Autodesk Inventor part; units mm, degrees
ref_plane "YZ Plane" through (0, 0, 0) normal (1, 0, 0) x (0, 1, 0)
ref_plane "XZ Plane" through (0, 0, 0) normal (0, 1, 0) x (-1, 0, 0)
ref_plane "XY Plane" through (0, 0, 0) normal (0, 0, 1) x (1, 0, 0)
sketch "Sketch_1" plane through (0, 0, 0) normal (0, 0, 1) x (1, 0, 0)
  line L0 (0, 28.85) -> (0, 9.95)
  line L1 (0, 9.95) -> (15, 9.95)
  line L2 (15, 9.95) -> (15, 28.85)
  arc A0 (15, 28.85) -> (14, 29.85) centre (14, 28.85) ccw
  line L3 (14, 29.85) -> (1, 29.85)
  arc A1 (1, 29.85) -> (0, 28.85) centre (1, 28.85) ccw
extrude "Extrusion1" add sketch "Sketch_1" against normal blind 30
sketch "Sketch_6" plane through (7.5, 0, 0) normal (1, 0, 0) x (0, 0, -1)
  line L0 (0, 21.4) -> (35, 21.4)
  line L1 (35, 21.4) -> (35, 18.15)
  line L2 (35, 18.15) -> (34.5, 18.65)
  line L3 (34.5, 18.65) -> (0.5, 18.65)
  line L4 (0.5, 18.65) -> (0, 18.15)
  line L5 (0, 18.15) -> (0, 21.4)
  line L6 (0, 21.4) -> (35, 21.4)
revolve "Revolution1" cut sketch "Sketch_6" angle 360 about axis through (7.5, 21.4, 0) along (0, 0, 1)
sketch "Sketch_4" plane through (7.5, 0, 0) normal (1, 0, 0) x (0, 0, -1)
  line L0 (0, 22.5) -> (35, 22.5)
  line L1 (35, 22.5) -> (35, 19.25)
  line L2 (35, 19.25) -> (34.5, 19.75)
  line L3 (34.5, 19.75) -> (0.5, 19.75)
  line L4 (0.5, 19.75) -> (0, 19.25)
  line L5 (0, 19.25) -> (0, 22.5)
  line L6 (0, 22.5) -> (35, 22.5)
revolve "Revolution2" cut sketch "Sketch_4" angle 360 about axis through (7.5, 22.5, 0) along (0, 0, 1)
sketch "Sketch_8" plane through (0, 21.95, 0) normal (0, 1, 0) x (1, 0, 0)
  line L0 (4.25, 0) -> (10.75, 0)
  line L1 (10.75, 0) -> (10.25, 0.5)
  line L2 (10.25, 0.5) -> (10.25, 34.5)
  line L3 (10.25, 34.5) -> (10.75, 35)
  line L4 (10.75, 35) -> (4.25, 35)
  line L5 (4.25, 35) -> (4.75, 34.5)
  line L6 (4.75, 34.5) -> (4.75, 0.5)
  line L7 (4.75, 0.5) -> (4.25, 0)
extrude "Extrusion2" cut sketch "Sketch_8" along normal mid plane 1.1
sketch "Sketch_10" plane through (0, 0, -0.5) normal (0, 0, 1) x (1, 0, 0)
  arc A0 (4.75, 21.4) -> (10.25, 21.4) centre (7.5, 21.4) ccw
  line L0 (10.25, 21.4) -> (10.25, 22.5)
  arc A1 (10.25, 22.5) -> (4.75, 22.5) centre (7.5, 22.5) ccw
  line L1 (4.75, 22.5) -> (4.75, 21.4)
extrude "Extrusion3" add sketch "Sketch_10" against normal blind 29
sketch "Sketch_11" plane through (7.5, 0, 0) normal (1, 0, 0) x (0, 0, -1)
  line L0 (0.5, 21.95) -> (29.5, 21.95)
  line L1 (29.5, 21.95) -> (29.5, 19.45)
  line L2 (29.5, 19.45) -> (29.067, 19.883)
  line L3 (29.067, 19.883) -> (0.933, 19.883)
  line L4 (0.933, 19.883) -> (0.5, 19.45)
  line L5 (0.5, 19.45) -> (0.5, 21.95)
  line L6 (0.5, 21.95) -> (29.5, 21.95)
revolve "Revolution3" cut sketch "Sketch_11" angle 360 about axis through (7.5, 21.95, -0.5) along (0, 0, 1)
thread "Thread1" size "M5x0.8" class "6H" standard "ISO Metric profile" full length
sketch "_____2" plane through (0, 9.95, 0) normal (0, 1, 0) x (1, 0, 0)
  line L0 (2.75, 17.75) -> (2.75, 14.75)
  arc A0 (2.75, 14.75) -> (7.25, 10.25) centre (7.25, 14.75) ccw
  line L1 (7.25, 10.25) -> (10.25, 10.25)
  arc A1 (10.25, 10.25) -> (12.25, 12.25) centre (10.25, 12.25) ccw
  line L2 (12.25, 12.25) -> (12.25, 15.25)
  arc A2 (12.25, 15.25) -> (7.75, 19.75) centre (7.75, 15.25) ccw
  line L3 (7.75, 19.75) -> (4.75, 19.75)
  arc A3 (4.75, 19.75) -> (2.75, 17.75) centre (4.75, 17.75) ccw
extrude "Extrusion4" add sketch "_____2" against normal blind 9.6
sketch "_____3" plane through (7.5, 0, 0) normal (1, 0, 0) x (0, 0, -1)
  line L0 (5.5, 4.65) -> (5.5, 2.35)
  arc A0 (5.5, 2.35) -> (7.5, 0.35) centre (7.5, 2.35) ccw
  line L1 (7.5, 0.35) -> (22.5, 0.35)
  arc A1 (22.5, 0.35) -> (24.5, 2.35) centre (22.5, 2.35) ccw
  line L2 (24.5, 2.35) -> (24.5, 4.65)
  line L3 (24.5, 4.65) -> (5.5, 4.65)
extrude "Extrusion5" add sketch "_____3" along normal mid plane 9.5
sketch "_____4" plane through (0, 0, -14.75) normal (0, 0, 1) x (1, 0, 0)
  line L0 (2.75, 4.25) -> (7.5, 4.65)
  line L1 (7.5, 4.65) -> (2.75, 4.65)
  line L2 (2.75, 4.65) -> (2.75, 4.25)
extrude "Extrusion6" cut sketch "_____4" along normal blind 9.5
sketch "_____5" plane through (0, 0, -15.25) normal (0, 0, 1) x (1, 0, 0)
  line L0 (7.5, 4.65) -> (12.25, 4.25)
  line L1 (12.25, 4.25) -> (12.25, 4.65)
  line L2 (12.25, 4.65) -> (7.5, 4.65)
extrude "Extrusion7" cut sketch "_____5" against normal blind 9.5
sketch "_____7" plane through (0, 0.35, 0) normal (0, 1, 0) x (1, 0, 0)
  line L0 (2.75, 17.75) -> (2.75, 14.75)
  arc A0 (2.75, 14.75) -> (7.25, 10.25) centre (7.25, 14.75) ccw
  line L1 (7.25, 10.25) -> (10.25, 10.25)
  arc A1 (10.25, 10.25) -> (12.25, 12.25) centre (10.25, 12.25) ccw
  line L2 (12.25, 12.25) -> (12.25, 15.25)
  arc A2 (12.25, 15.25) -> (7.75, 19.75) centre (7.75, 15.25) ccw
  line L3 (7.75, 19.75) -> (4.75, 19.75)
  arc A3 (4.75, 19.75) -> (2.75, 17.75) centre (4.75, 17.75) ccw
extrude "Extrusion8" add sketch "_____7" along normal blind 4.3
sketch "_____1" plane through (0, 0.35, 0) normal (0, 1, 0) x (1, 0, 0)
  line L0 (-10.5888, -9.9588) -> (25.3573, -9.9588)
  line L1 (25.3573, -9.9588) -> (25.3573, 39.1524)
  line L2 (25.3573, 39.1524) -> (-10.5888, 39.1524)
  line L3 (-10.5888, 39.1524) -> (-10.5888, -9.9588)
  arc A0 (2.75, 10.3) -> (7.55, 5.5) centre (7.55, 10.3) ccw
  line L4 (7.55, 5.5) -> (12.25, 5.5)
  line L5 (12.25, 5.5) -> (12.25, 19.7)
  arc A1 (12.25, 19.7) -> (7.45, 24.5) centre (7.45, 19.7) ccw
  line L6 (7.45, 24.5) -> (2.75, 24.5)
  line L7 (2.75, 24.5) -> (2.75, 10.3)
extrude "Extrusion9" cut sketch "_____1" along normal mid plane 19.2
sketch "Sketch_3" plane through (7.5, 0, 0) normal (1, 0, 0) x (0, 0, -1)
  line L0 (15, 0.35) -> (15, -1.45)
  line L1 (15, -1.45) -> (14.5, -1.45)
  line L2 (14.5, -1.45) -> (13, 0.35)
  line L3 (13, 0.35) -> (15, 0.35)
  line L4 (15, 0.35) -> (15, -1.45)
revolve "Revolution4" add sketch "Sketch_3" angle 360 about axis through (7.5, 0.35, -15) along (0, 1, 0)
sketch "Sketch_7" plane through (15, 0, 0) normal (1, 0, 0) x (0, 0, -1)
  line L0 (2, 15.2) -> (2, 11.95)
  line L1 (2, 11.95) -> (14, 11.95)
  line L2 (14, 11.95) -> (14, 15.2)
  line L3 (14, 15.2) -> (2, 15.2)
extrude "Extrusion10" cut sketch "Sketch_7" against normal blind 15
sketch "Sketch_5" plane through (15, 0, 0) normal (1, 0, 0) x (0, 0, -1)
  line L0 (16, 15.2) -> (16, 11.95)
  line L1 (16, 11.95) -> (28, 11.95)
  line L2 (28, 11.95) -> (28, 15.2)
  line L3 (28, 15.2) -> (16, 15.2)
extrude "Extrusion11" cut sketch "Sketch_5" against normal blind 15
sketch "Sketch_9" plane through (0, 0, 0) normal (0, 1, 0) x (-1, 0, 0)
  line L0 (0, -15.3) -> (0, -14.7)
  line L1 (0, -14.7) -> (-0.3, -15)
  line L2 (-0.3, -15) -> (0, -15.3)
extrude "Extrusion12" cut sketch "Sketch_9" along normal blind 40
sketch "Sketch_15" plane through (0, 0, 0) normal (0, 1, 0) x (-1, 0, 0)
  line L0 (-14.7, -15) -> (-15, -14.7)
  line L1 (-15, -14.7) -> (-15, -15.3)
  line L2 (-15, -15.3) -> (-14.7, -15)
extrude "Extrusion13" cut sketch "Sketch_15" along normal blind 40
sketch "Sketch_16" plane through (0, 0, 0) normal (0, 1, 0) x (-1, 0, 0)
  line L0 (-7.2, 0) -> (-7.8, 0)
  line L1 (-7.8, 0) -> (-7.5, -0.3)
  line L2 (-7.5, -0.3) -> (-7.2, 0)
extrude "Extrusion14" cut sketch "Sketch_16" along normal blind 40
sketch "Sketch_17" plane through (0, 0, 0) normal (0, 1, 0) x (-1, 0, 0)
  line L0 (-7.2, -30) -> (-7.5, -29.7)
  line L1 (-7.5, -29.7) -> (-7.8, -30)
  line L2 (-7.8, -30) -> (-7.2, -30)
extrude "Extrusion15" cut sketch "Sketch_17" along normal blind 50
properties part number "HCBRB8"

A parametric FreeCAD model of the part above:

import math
import FreeCAD as App
import Part
import Sketcher

V = App.Vector
Q = App.Units.Quantity

doc = App.newDocument("Part")
body = doc.addObject("PartDesign::Body", "Body")

# Sketch on XY plane
sketch1 = body.newObject("Sketcher::SketchObject", "Sketch")
sketch1.AttachmentSupport = (doc.getObject("XY_Plane"), [""])
sketch1.MapMode = "FlatFace"
sketch1.addGeometry(Part.ArcOfCircle(Part.Circle(V(1, 28.9, 0), V(0, 0, 1), 1), math.radians(90), math.radians(180)), False)
sketch1.addGeometry(Part.LineSegment(V(0, 28.9, 0), V(0, 9.9, 0)), False)
sketch1.addGeometry(Part.LineSegment(V(0, 9.9, 0), V(15, 9.9, 0)), False)
sketch1.addGeometry(Part.LineSegment(V(15, 9.9, 0), V(15, 28.9, 0)), False)
sketch1.addGeometry(Part.ArcOfCircle(Part.Circle(V(14, 28.9, 0), V(0, 0, 1), 1), math.radians(0), math.radians(90)), False)
sketch1.addGeometry(Part.LineSegment(V(14, 29.9, 0), V(1, 29.9, 0)), False)
sketch1.addConstraint(Sketcher.Constraint("Tangent", 0, 2, 1, 1))
sketch1.addConstraint(Sketcher.Constraint("Coincident", 1, 2, 2, 1))
sketch1.addConstraint(Sketcher.Constraint("Coincident", 2, 2, 3, 1))
sketch1.addConstraint(Sketcher.Constraint("Tangent", 3, 2, 4, 1))
sketch1.addConstraint(Sketcher.Constraint("Tangent", 4, 2, 5, 1))
sketch1.addConstraint(Sketcher.Constraint("Tangent", 5, 2, 0, 1))
sketch1.addConstraint(Sketcher.Constraint("Vertical", 1))
sketch1.addConstraint(Sketcher.Constraint("Horizontal", 2))
sketch1.addConstraint(Sketcher.Constraint("Vertical", 3))
sketch1.addConstraint(Sketcher.Constraint("Horizontal", 5))
sketch1.addConstraint(Sketcher.Constraint("Equal", 0, 4))
sketch1.addConstraint(Sketcher.Constraint("PointOnObject", 0, 2, -2))
sketch1.addConstraint(Sketcher.Constraint("Radius", 0, Q("1 mm")))
sketch1.addConstraint(Sketcher.Constraint("DistanceX", 2, 1, 2, 2, Q("15 mm")))
sketch1.addConstraint(Sketcher.Constraint("DistanceY", 1, 2, 1, 1, Q("18.9 mm")))
sketch1.addConstraint(Sketcher.Constraint("DistanceY", -1, 1, 0, 3, Q("28.85 mm")))
pad1 = body.newObject("PartDesign::Pad", "Pad")
pad1.Profile = sketch1
pad1.Length = 30
pad1.Reversed = True

# Sketch on YZ plane
sketch2 = body.newObject("Sketcher::SketchObject", "Sketch001")
sketch2.AttachmentSupport = (doc.getObject("YZ_Plane"), [""])
sketch2.MapMode = "FlatFace"
sketch2.AttachmentOffset = App.Placement(V(0, 0, 7.5), App.Rotation())
sketch2.addGeometry(Part.LineSegment(V(21.4, -35, 0), V(21.4, 0, 0)), False)
sketch2.addGeometry(Part.LineSegment(V(21.4, 0, 0), V(18.1, 0, 0)), False)
sketch2.addGeometry(Part.LineSegment(V(18.1, 0, 0), V(18.6, -0.5, 0)), False)
sketch2.addGeometry(Part.LineSegment(V(18.6, -0.5, 0), V(18.6, -34.5, 0)), False)
sketch2.addGeometry(Part.LineSegment(V(18.6, -34.5, 0), V(18.1, -35, 0)), False)
sketch2.addGeometry(Part.LineSegment(V(18.1, -35, 0), V(21.4, -35, 0)), False)
sketch2.addGeometry(Part.LineSegment(V(21.4, -35, 0), V(21.4, 0, 0)), True)  # axis
sketch2.addConstraint(Sketcher.Constraint("Coincident", 0, 2, 1, 1))
sketch2.addConstraint(Sketcher.Constraint("Coincident", 1, 2, 2, 1))
sketch2.addConstraint(Sketcher.Constraint("Coincident", 2, 2, 3, 1))
sketch2.addConstraint(Sketcher.Constraint("Coincident", 3, 2, 4, 1))
sketch2.addConstraint(Sketcher.Constraint("Coincident", 4, 2, 5, 1))
sketch2.addConstraint(Sketcher.Constraint("Coincident", 5, 2, 0, 1))
sketch2.addConstraint(Sketcher.Constraint("Vertical", 0))
sketch2.addConstraint(Sketcher.Constraint("Horizontal", 1))
sketch2.addConstraint(Sketcher.Constraint("Vertical", 3))
sketch2.addConstraint(Sketcher.Constraint("Horizontal", 5))
sketch2.addConstraint(Sketcher.Constraint("Vertical", 6))
sketch2.addConstraint(Sketcher.Constraint("Coincident", 6, 1, 5, 2))
sketch2.addConstraint(Sketcher.Constraint("PointOnObject", 0, 2, -1))
sketch2.addConstraint(Sketcher.Constraint("PointOnObject", 6, 2, -1))
sketch2.addConstraint(Sketcher.Constraint("Perpendicular", 2, 4))
sketch2.addConstraint(Sketcher.Constraint("Vertical", 1, 2, 4, 2))
sketch2.addConstraint(Sketcher.Constraint("Equal", 2, 4))
sketch2.addConstraint(Sketcher.Constraint("DistanceY", 0, 1, 0, 2, Q("35 mm")))
sketch2.addConstraint(Sketcher.Constraint("DistanceY", 3, 2, 3, 1, Q("34 mm")))
sketch2.addConstraint(Sketcher.Constraint("DistanceX", 1, 2, 1, 1, Q("3.25 mm")))
sketch2.addConstraint(Sketcher.Constraint("DistanceX", -1, 1, 0, 2, Q("21.4 mm")))
groove = body.newObject("PartDesign::Groove", "Groove")
groove.Profile = sketch2
groove.ReferenceAxis = (sketch2, ["Axis0"])
groove.Angle = 360

# Sketch on YZ plane
sketch3 = body.newObject("Sketcher::SketchObject", "Sketch002")
sketch3.AttachmentSupport = (doc.getObject("YZ_Plane"), [""])
sketch3.MapMode = "FlatFace"
sketch3.AttachmentOffset = App.Placement(V(0, 0, 7.5), App.Rotation())
sketch3.addGeometry(Part.LineSegment(V(22.5, -35, 0), V(22.5, 0, 0)), False)
sketch3.addGeometry(Part.LineSegment(V(22.5, 0, 0), V(19.2, 0, 0)), False)
sketch3.addGeometry(Part.LineSegment(V(19.2, 0, 0), V(19.8, -0.5, 0)), False)
sketch3.addGeometry(Part.LineSegment(V(19.8, -0.5, 0), V(19.8, -34.5, 0)), False)
sketch3.addGeometry(Part.LineSegment(V(19.8, -34.5, 0), V(19.2, -35, 0)), False)
sketch3.addGeometry(Part.LineSegment(V(19.2, -35, 0), V(22.5, -35, 0)), False)
sketch3.addGeometry(Part.LineSegment(V(22.5, -35, 0), V(22.5, 0, 0)), True)  # axis
sketch3.addConstraint(Sketcher.Constraint("Coincident", 0, 2, 1, 1))
sketch3.addConstraint(Sketcher.Constraint("Coincident", 1, 2, 2, 1))
sketch3.addConstraint(Sketcher.Constraint("Coincident", 2, 2, 3, 1))
sketch3.addConstraint(Sketcher.Constraint("Coincident", 3, 2, 4, 1))
sketch3.addConstraint(Sketcher.Constraint("Coincident", 4, 2, 5, 1))
sketch3.addConstraint(Sketcher.Constraint("Coincident", 5, 2, 0, 1))
sketch3.addConstraint(Sketcher.Constraint("Vertical", 0))
sketch3.addConstraint(Sketcher.Constraint("Horizontal", 1))
sketch3.addConstraint(Sketcher.Constraint("Vertical", 3))
sketch3.addConstraint(Sketcher.Constraint("Horizontal", 5))
sketch3.addConstraint(Sketcher.Constraint("Vertical", 6))
sketch3.addConstraint(Sketcher.Constraint("Coincident", 6, 1, 5, 2))
sketch3.addConstraint(Sketcher.Constraint("PointOnObject", 0, 2, -1))
sketch3.addConstraint(Sketcher.Constraint("PointOnObject", 6, 2, -1))
sketch3.addConstraint(Sketcher.Constraint("Perpendicular", 2, 4))
sketch3.addConstraint(Sketcher.Constraint("Vertical", 1, 2, 4, 2))
sketch3.addConstraint(Sketcher.Constraint("Equal", 2, 4))
sketch3.addConstraint(Sketcher.Constraint("DistanceY", 0, 1, 0, 2, Q("35 mm")))
sketch3.addConstraint(Sketcher.Constraint("DistanceY", 3, 2, 3, 1, Q("34 mm")))
sketch3.addConstraint(Sketcher.Constraint("DistanceX", 1, 2, 1, 1, Q("3.25 mm")))
sketch3.addConstraint(Sketcher.Constraint("DistanceX", -1, 1, 0, 2, Q("22.5 mm")))
groove2 = body.newObject("PartDesign::Groove", "Groove001")
groove2.Profile = sketch3
groove2.ReferenceAxis = (sketch3, ["Axis0"])
groove2.Angle = 360

# Sketch on XZ plane
sketch4 = body.newObject("Sketcher::SketchObject", "Sketch003")
sketch4.AttachmentSupport = (doc.getObject("XZ_Plane"), [""])
sketch4.MapMode = "FlatFace"
sketch4.AttachmentOffset = App.Placement(V(0, 0, -21.95), App.Rotation())
sketch4.addGeometry(Part.LineSegment(V(4.8, -0.5, 0), V(4.2, 0, 0)), False)
sketch4.addGeometry(Part.LineSegment(V(4.2, 0, 0), V(10.8, 0, 0)), False)
sketch4.addGeometry(Part.LineSegment(V(10.8, 0, 0), V(10.2, -0.5, 0)), False)
sketch4.addGeometry(Part.LineSegment(V(10.2, -0.5, 0), V(10.2, -34.5, 0)), False)
sketch4.addGeometry(Part.LineSegment(V(10.2, -34.5, 0), V(10.8, -35, 0)), False)
sketch4.addGeometry(Part.LineSegment(V(10.8, -35, 0), V(4.2, -35, 0)), False)
sketch4.addGeometry(Part.LineSegment(V(4.2, -35, 0), V(4.8, -34.5, 0)), False)
sketch4.addGeometry(Part.LineSegment(V(4.8, -34.5, 0), V(4.8, -0.5, 0)), False)
sketch4.addConstraint(Sketcher.Constraint("Coincident", 0, 2, 1, 1))
sketch4.addConstraint(Sketcher.Constraint("Coincident", 1, 2, 2, 1))
sketch4.addConstraint(Sketcher.Constraint("Coincident", 2, 2, 3, 1))
sketch4.addConstraint(Sketcher.Constraint("Coincident", 3, 2, 4, 1))
sketch4.addConstraint(Sketcher.Constraint("Coincident", 4, 2, 5, 1))
sketch4.addConstraint(Sketcher.Constraint("Coincident", 5, 2, 6, 1))
sketch4.addConstraint(Sketcher.Constraint("Coincident", 6, 2, 7, 1))
sketch4.addConstraint(Sketcher.Constraint("Coincident", 7, 2, 0, 1))
sketch4.addConstraint(Sketcher.Constraint("Horizontal", 1))
sketch4.addConstraint(Sketcher.Constraint("Vertical", 3))
sketch4.addConstraint(Sketcher.Constraint("Horizontal", 5))
sketch4.addConstraint(Sketcher.Constraint("Vertical", 7))
sketch4.addConstraint(Sketcher.Constraint("PointOnObject", 0, 2, -1))
sketch4.addConstraint(Sketcher.Constraint("Perpendicular", 0, 2))
sketch4.addConstraint(Sketcher.Constraint("Perpendicular", 2, 4))
sketch4.addConstraint(Sketcher.Constraint("Perpendicular", 4, 6))
sketch4.addConstraint(Sketcher.Constraint("Horizontal", 3, 2, 6, 2))
sketch4.addConstraint(Sketcher.Constraint("Horizontal", 2, 2, 7, 2))
sketch4.addConstraint(Sketcher.Constraint("Vertical", 1, 2, 4, 2))
sketch4.addConstraint(Sketcher.Constraint("Vertical", 0, 2, 5, 2))
sketch4.addConstraint(Sketcher.Constraint("DistanceY", 3, 2, 3, 1, Q("34 mm")))
sketch4.addConstraint(Sketcher.Constraint("DistanceX", 1, 1, 1, 2, Q("6.5 mm")))
sketch4.addConstraint(Sketcher.Constraint("DistanceY", 4, 2, -1, 1, Q("35 mm")))
sketch4.addConstraint(Sketcher.Constraint("DistanceX", -1, 1, 0, 2, Q("4.25 mm")))
pocket1 = body.newObject("PartDesign::Pocket", "Pocket")
pocket1.Profile = sketch4
pocket1.Length = 1.1
pocket1.Midplane = True

# Sketch on XY plane
sketch5 = body.newObject("Sketcher::SketchObject", "Sketch004")
sketch5.AttachmentSupport = (doc.getObject("XY_Plane"), [""])
sketch5.MapMode = "FlatFace"
sketch5.AttachmentOffset = App.Placement(V(0, 0, -0.5), App.Rotation())
sketch5.addGeometry(Part.LineSegment(V(4.8, 22.5, 0), V(4.8, 21.4, 0)), False)
sketch5.addGeometry(Part.ArcOfCircle(Part.Circle(V(7.5, 21.4, 0), V(0, 0, 1), 2.8), math.radians(180), math.radians(360)), False)
sketch5.addGeometry(Part.LineSegment(V(10.2, 21.4, 0), V(10.2, 22.5, 0)), False)
sketch5.addGeometry(Part.ArcOfCircle(Part.Circle(V(7.5, 22.5, 0), V(0, 0, 1), 2.8), math.radians(0), math.radians(180)), False)
sketch5.addConstraint(Sketcher.Constraint("Tangent", 0, 2, 1, 1))
sketch5.addConstraint(Sketcher.Constraint("Tangent", 1, 2, 2, 1))
sketch5.addConstraint(Sketcher.Constraint("Tangent", 2, 2, 3, 1))
sketch5.addConstraint(Sketcher.Constraint("Tangent", 3, 2, 0, 1))
sketch5.addConstraint(Sketcher.Constraint("Vertical", 0))
sketch5.addConstraint(Sketcher.Constraint("Vertical", 2))
sketch5.addConstraint(Sketcher.Constraint("Radius", 1, Q("2.75 mm")))
sketch5.addConstraint(Sketcher.Constraint("DistanceY", 0, 2, 0, 1, Q("1.1 mm")))
sketch5.addConstraint(Sketcher.Constraint("DistanceX", -1, 1, 1, 3, Q("7.5 mm")))
sketch5.addConstraint(Sketcher.Constraint("DistanceY", -1, 1, 1, 3, Q("21.4 mm")))
pad2 = body.newObject("PartDesign::Pad", "Pad001")
pad2.Profile = sketch5
pad2.Length = 29
pad2.Reversed = True

# Sketch on YZ plane
sketch6 = body.newObject("Sketcher::SketchObject", "Sketch005")
sketch6.AttachmentSupport = (doc.getObject("YZ_Plane"), [""])
sketch6.MapMode = "FlatFace"
sketch6.AttachmentOffset = App.Placement(V(0, 0, 7.5), App.Rotation())
sketch6.addGeometry(Part.LineSegment(V(21.9, -29.5, 0), V(21.9, -0.5, 0)), False)
sketch6.addGeometry(Part.LineSegment(V(21.9, -0.5, 0), V(19.4, -0.5, 0)), False)
sketch6.addGeometry(Part.LineSegment(V(19.4, -0.5, 0), V(19.9, -0.9, 0)), False)
sketch6.addGeometry(Part.LineSegment(V(19.9, -0.9, 0), V(19.9, -29.1, 0)), False)
sketch6.addGeometry(Part.LineSegment(V(19.9, -29.1, 0), V(19.4, -29.5, 0)), False)
sketch6.addGeometry(Part.LineSegment(V(19.4, -29.5, 0), V(21.9, -29.5, 0)), False)
sketch6.addGeometry(Part.LineSegment(V(21.9, -29.5, 0), V(21.9, -0.5, 0)), True)  # axis
sketch6.addConstraint(Sketcher.Constraint("Coincident", 0, 2, 1, 1))
sketch6.addConstraint(Sketcher.Constraint("Coincident", 1, 2, 2, 1))
sketch6.addConstraint(Sketcher.Constraint("Coincident", 2, 2, 3, 1))
sketch6.addConstraint(Sketcher.Constraint("Coincident", 3, 2, 4, 1))
sketch6.addConstraint(Sketcher.Constraint("Coincident", 4, 2, 5, 1))
sketch6.addConstraint(Sketcher.Constraint("Coincident", 5, 2, 0, 1))
sketch6.addConstraint(Sketcher.Constraint("Vertical", 0))
sketch6.addConstraint(Sketcher.Constraint("Horizontal", 1))
sketch6.addConstraint(Sketcher.Constraint("Vertical", 3))
sketch6.addConstraint(Sketcher.Constraint("Horizontal", 5))
sketch6.addConstraint(Sketcher.Constraint("Vertical", 6))
sketch6.addConstraint(Sketcher.Constraint("Coincident", 6, 1, 5, 2))
sketch6.addConstraint(Sketcher.Constraint("Perpendicular", 2, 4))
sketch6.addConstraint(Sketcher.Constraint("Horizontal", 1, 2, 6, 2))
sketch6.addConstraint(Sketcher.Constraint("Vertical", 1, 2, 4, 2))
sketch6.addConstraint(Sketcher.Constraint("Equal", 2, 4))
sketch6.addConstraint(Sketcher.Constraint("DistanceY", 0, 1, 0, 2, Q("29 mm")))
sketch6.addConstraint(Sketcher.Constraint("DistanceX", 1, 2, 1, 1, Q("2.5 mm")))
sketch6.addConstraint(Sketcher.Constraint("DistanceY", 0, 2, -1, 1, Q("0.5 mm")))
sketch6.addConstraint(Sketcher.Constraint("DistanceY", 3, 2, 3, 1, Q("28.134 mm")))
sketch6.addConstraint(Sketcher.Constraint("DistanceX", -1, 1, 0, 2, Q("21.95 mm")))
groove3 = body.newObject("PartDesign::Groove", "Groove002")
groove3.Profile = sketch6
groove3.ReferenceAxis = (sketch6, ["Axis0"])
groove3.Angle = 360

# Sketch on XZ plane
sketch7 = body.newObject("Sketcher::SketchObject", "Sketch006")
sketch7.AttachmentSupport = (doc.getObject("XZ_Plane"), [""])
sketch7.MapMode = "FlatFace"
sketch7.AttachmentOffset = App.Placement(V(0, 0, -9.95), App.Rotation())
sketch7.addGeometry(Part.ArcOfCircle(Part.Circle(V(4.8, -17.8, 0), V(0, 0, 1), 2), math.radians(180), math.radians(270)), False)
sketch7.addGeometry(Part.LineSegment(V(2.8, -17.8, 0), V(2.8, -14.8, 0)), False)
sketch7.addGeometry(Part.ArcOfCircle(Part.Circle(V(7.2, -14.8, 0), V(0, 0, 1), 4.5), math.radians(90), math.radians(180)), False)
sketch7.addGeometry(Part.LineSegment(V(7.2, -10.2, 0), V(10.2, -10.2, 0)), False)
sketch7.addGeometry(Part.ArcOfCircle(Part.Circle(V(10.2, -12.2, 0), V(0, 0, 1), 2), math.radians(0), math.radians(90)), False)
sketch7.addGeometry(Part.LineSegment(V(12.2, -12.2, 0), V(12.2, -15.2, 0)), False)
sketch7.addGeometry(Part.ArcOfCircle(Part.Circle(V(7.8, -15.2, 0), V(0, 0, 1), 4.5), math.radians(-90), math.radians(0)), False)
sketch7.addGeometry(Part.LineSegment(V(7.8, -19.8, 0), V(4.8, -19.8, 0)), False)
sketch7.addConstraint(Sketcher.Constraint("Tangent", 0, 1, 1, 1))
sketch7.addConstraint(Sketcher.Constraint("Tangent", 1, 2, 2, 2))
sketch7.addConstraint(Sketcher.Constraint("Tangent", 2, 1, 3, 1))
sketch7.addConstraint(Sketcher.Constraint("Tangent", 3, 2, 4, 2))
sketch7.addConstraint(Sketcher.Constraint("Tangent", 4, 1, 5, 1))
sketch7.addConstraint(Sketcher.Constraint("Tangent", 5, 2, 6, 2))
sketch7.addConstraint(Sketcher.Constraint("Tangent", 6, 1, 7, 1))
sketch7.addConstraint(Sketcher.Constraint("Tangent", 7, 2, 0, 2))
sketch7.addConstraint(Sketcher.Constraint("Vertical", 1))
sketch7.addConstraint(Sketcher.Constraint("Horizontal", 3))
sketch7.addConstraint(Sketcher.Constraint("Vertical", 5))
sketch7.addConstraint(Sketcher.Constraint("Horizontal", 7))
sketch7.addConstraint(Sketcher.Constraint("Equal", 0, 4))
sketch7.addConstraint(Sketcher.Constraint("Equal", 2, 6))
sketch7.addConstraint(Sketcher.Constraint("Equal", 7, 1))
sketch7.addConstraint(Sketcher.Constraint("Radius", 0, Q("2 mm")))
sketch7.addConstraint(Sketcher.Constraint("Radius", 2, Q("4.5 mm")))
sketch7.addConstraint(Sketcher.Constraint("DistanceX", 3, 1, 3, 2, Q("3 mm")))
sketch7.addConstraint(Sketcher.Constraint("DistanceX", -1, 1, 0, 3, Q("4.75 mm")))
sketch7.addConstraint(Sketcher.Constraint("DistanceY", 0, 3, -1, 1, Q("17.75 mm")))
pad3 = body.newObject("PartDesign::Pad", "Pad002")
pad3.Profile = sketch7
pad3.Length = 9.6

# Sketch on YZ plane
sketch8 = body.newObject("Sketcher::SketchObject", "Sketch007")
sketch8.AttachmentSupport = (doc.getObject("YZ_Plane"), [""])
sketch8.MapMode = "FlatFace"
sketch8.AttachmentOffset = App.Placement(V(0, 0, 7.5), App.Rotation())
sketch8.addGeometry(Part.LineSegment(V(4.7, -24.5, 0), V(4.7, -5.5, 0)), False)
sketch8.addGeometry(Part.LineSegment(V(4.7, -5.5, 0), V(2.4, -5.5, 0)), False)
sketch8.addGeometry(Part.ArcOfCircle(Part.Circle(V(2.4, -7.5, 0), V(0, 0, 1), 2), math.radians(90), math.radians(180)), False)
sketch8.addGeometry(Part.LineSegment(V(0.3, -7.5, 0), V(0.3, -22.5, 0)), False)
sketch8.addGeometry(Part.ArcOfCircle(Part.Circle(V(2.4, -22.5, 0), V(0, 0, 1), 2), math.radians(180), math.radians(270)), False)
sketch8.addGeometry(Part.LineSegment(V(2.4, -24.5, 0), V(4.7, -24.5, 0)), False)
sketch8.addConstraint(Sketcher.Constraint("Coincident", 0, 2, 1, 1))
sketch8.addConstraint(Sketcher.Constraint("Tangent", 1, 2, 2, 1))
sketch8.addConstraint(Sketcher.Constraint("Tangent", 2, 2, 3, 1))
sketch8.addConstraint(Sketcher.Constraint("Tangent", 3, 2, 4, 1))
sketch8.addConstraint(Sketcher.Constraint("Tangent", 4, 2, 5, 1))
sketch8.addConstraint(Sketcher.Constraint("Coincident", 5, 2, 0, 1))
sketch8.addConstraint(Sketcher.Constraint("Vertical", 0))
sketch8.addConstraint(Sketcher.Constraint("Horizontal", 1))
sketch8.addConstraint(Sketcher.Constraint("Vertical", 3))
sketch8.addConstraint(Sketcher.Constraint("Horizontal", 5))
sketch8.addConstraint(Sketcher.Constraint("Equal", 2, 4))
sketch8.addConstraint(Sketcher.Constraint("Radius", 2, Q("2 mm")))
sketch8.addConstraint(Sketcher.Constraint("DistanceY", 0, 1, 0, 2, Q("19 mm")))
sketch8.addConstraint(Sketcher.Constraint("DistanceX", 1, 2, 1, 1, Q("2.3 mm")))
sketch8.addConstraint(Sketcher.Constraint("DistanceY", 2, 3, -1, 1, Q("7.5 mm")))
sketch8.addConstraint(Sketcher.Constraint("DistanceX", -1, 1, 2, 3, Q("2.35 mm")))
pad4 = body.newObject("PartDesign::Pad", "Pad003")
pad4.Profile = sketch8
pad4.Length = 9.5
pad4.Midplane = True

# Sketch on XY plane
sketch9 = body.newObject("Sketcher::SketchObject", "Sketch008")
sketch9.AttachmentSupport = (doc.getObject("XY_Plane"), [""])
sketch9.MapMode = "FlatFace"
sketch9.AttachmentOffset = App.Placement(V(0, 0, -14.75), App.Rotation())
sketch9.addGeometry(Part.LineSegment(V(2.75, 4.65, 0), V(2.75, 4.25, 0)), False)
sketch9.addGeometry(Part.LineSegment(V(2.75, 4.25, 0), V(7.5, 4.65, 0)), False)
sketch9.addGeometry(Part.LineSegment(V(7.5, 4.65, 0), V(2.75, 4.65, 0)), False)
sketch9.addConstraint(Sketcher.Constraint("Coincident", 0, 2, 1, 1))
sketch9.addConstraint(Sketcher.Constraint("Coincident", 1, 2, 2, 1))
sketch9.addConstraint(Sketcher.Constraint("Coincident", 2, 2, 0, 1))
sketch9.addConstraint(Sketcher.Constraint("Vertical", 0))
sketch9.addConstraint(Sketcher.Constraint("Horizontal", 2))
sketch9.addConstraint(Sketcher.Constraint("DistanceY", 0, 2, 0, 1, Q("0.4 mm")))
sketch9.addConstraint(Sketcher.Constraint("DistanceX", 2, 2, 2, 1, Q("4.75 mm")))
sketch9.addConstraint(Sketcher.Constraint("DistanceX", -1, 1, 1, 2, Q("7.5 mm")))
sketch9.addConstraint(Sketcher.Constraint("DistanceY", -1, 1, 0, 2, Q("4.25 mm")))
pocket2 = body.newObject("PartDesign::Pocket", "Pocket001")
pocket2.Profile = sketch9
pocket2.Length = 9.5
pocket2.Reversed = True

# Sketch on XY plane
sketch10 = body.newObject("Sketcher::SketchObject", "Sketch009")
sketch10.AttachmentSupport = (doc.getObject("XY_Plane"), [""])
sketch10.MapMode = "FlatFace"
sketch10.AttachmentOffset = App.Placement(V(0, 0, -15.25), App.Rotation())
sketch10.addGeometry(Part.LineSegment(V(12.25, 4.65, 0), V(7.5, 4.65, 0)), False)
sketch10.addGeometry(Part.LineSegment(V(7.5, 4.65, 0), V(12.25, 4.25, 0)), False)
sketch10.addGeometry(Part.LineSegment(V(12.25, 4.25, 0), V(12.25, 4.65, 0)), False)
sketch10.addConstraint(Sketcher.Constraint("Coincident", 0, 2, 1, 1))
sketch10.addConstraint(Sketcher.Constraint("Coincident", 1, 2, 2, 1))
sketch10.addConstraint(Sketcher.Constraint("Coincident", 2, 2, 0, 1))
sketch10.addConstraint(Sketcher.Constraint("Horizontal", 0))
sketch10.addConstraint(Sketcher.Constraint("Vertical", 2))
sketch10.addConstraint(Sketcher.Constraint("DistanceY", 2, 1, 2, 2, Q("0.4 mm")))
sketch10.addConstraint(Sketcher.Constraint("DistanceX", 0, 2, 0, 1, Q("4.75 mm")))
sketch10.addConstraint(Sketcher.Constraint("DistanceX", -1, 1, 0, 2, Q("7.5 mm")))
sketch10.addConstraint(Sketcher.Constraint("DistanceY", -1, 1, 0, 2, Q("4.65 mm")))
pocket3 = body.newObject("PartDesign::Pocket", "Pocket002")
pocket3.Profile = sketch10
pocket3.Length = 9.5

# Sketch on XZ plane
sketch11 = body.newObject("Sketcher::SketchObject", "Sketch010")
sketch11.AttachmentSupport = (doc.getObject("XZ_Plane"), [""])
sketch11.MapMode = "FlatFace"
sketch11.AttachmentOffset = App.Placement(V(0, 0, -0.35), App.Rotation())
sketch11.addGeometry(Part.ArcOfCircle(Part.Circle(V(4.8, -17.8, 0), V(0, 0, 1), 2), math.radians(180), math.radians(270)), False)
sketch11.addGeometry(Part.LineSegment(V(2.8, -17.8, 0), V(2.8, -14.8, 0)), False)
sketch11.addGeometry(Part.ArcOfCircle(Part.Circle(V(7.2, -14.8, 0), V(0, 0, 1), 4.5), math.radians(90), math.radians(180)), False)
sketch11.addGeometry(Part.LineSegment(V(7.2, -10.2, 0), V(10.2, -10.2, 0)), False)
sketch11.addGeometry(Part.ArcOfCircle(Part.Circle(V(10.2, -12.2, 0), V(0, 0, 1), 2), math.radians(0), math.radians(90)), False)
sketch11.addGeometry(Part.LineSegment(V(12.2, -12.2, 0), V(12.2, -15.2, 0)), False)
sketch11.addGeometry(Part.ArcOfCircle(Part.Circle(V(7.8, -15.2, 0), V(0, 0, 1), 4.5), math.radians(-90), math.radians(0)), False)
sketch11.addGeometry(Part.LineSegment(V(7.8, -19.8, 0), V(4.8, -19.8, 0)), False)
sketch11.addConstraint(Sketcher.Constraint("Tangent", 0, 1, 1, 1))
sketch11.addConstraint(Sketcher.Constraint("Tangent", 1, 2, 2, 2))
sketch11.addConstraint(Sketcher.Constraint("Tangent", 2, 1, 3, 1))
sketch11.addConstraint(Sketcher.Constraint("Tangent", 3, 2, 4, 2))
sketch11.addConstraint(Sketcher.Constraint("Tangent", 4, 1, 5, 1))
sketch11.addConstraint(Sketcher.Constraint("Tangent", 5, 2, 6, 2))
sketch11.addConstraint(Sketcher.Constraint("Tangent", 6, 1, 7, 1))
sketch11.addConstraint(Sketcher.Constraint("Tangent", 7, 2, 0, 2))
sketch11.addConstraint(Sketcher.Constraint("Vertical", 1))
sketch11.addConstraint(Sketcher.Constraint("Horizontal", 3))
sketch11.addConstraint(Sketcher.Constraint("Vertical", 5))
sketch11.addConstraint(Sketcher.Constraint("Horizontal", 7))
sketch11.addConstraint(Sketcher.Constraint("Equal", 0, 4))
sketch11.addConstraint(Sketcher.Constraint("Equal", 2, 6))
sketch11.addConstraint(Sketcher.Constraint("Equal", 7, 1))
sketch11.addConstraint(Sketcher.Constraint("Radius", 0, Q("2 mm")))
sketch11.addConstraint(Sketcher.Constraint("Radius", 2, Q("4.5 mm")))
sketch11.addConstraint(Sketcher.Constraint("DistanceX", 3, 1, 3, 2, Q("3 mm")))
sketch11.addConstraint(Sketcher.Constraint("DistanceX", -1, 1, 0, 3, Q("4.75 mm")))
sketch11.addConstraint(Sketcher.Constraint("DistanceY", 0, 3, -1, 1, Q("17.75 mm")))
pad5 = body.newObject("PartDesign::Pad", "Pad004")
pad5.Profile = sketch11
pad5.Length = 4.3
pad5.Reversed = True

# Sketch on XZ plane
sketch12 = body.newObject("Sketcher::SketchObject", "Sketch011")
sketch12.AttachmentSupport = (doc.getObject("XZ_Plane"), [""])
sketch12.MapMode = "FlatFace"
sketch12.AttachmentOffset = App.Placement(V(0, 0, -0.35), App.Rotation())
sketch12.addGeometry(Part.LineSegment(V(-10.6, -39.2, 0), V(-10.6, 10, 0)), False)
sketch12.addGeometry(Part.LineSegment(V(-10.6, 10, 0), V(25.4, 10, 0)), False)
sketch12.addGeometry(Part.LineSegment(V(25.4, 10, 0), V(25.4, -39.2, 0)), False)
sketch12.addGeometry(Part.LineSegment(V(25.4, -39.2, 0), V(-10.6, -39.2, 0)), False)
sketch12.addGeometry(Part.ArcOfCircle(Part.Circle(V(7.5, -10.3, 0), V(0, 0, 1), 4.8), math.radians(90), math.radians(180)), False)
sketch12.addGeometry(Part.LineSegment(V(2.8, -10.3, 0), V(2.8, -24.5, 0)), False)
sketch12.addGeometry(Part.LineSegment(V(2.8, -24.5, 0), V(7.5, -24.5, 0)), False)
sketch12.addGeometry(Part.ArcOfCircle(Part.Circle(V(7.5, -19.7, 0), V(0, 0, 1), 4.8), math.radians(-90), math.radians(0)), False)
sketch12.addGeometry(Part.LineSegment(V(12.2, -19.7, 0), V(12.2, -5.5, 0)), False)
sketch12.addGeometry(Part.LineSegment(V(12.2, -5.5, 0), V(7.5, -5.5, 0)), False)
sketch12.addConstraint(Sketcher.Constraint("Coincident", 0, 2, 1, 1))
sketch12.addConstraint(Sketcher.Constraint("Coincident", 1, 2, 2, 1))
sketch12.addConstraint(Sketcher.Constraint("Coincident", 2, 2, 3, 1))
sketch12.addConstraint(Sketcher.Constraint("Coincident", 3, 2, 0, 1))
sketch12.addConstraint(Sketcher.Constraint("Tangent", 4, 2, 5, 1))
sketch12.addConstraint(Sketcher.Constraint("Coincident", 5, 2, 6, 1))
sketch12.addConstraint(Sketcher.Constraint("Tangent", 6, 2, 7, 1))
sketch12.addConstraint(Sketcher.Constraint("Tangent", 7, 2, 8, 1))
sketch12.addConstraint(Sketcher.Constraint("Coincident", 8, 2, 9, 1))
sketch12.addConstraint(Sketcher.Constraint("Tangent", 9, 2, 4, 1))
sketch12.addConstraint(Sketcher.Constraint("Vertical", 0))
sketch12.addConstraint(Sketcher.Constraint("Horizontal", 1))
sketch12.addConstraint(Sketcher.Constraint("Vertical", 2))
sketch12.addConstraint(Sketcher.Constraint("Horizontal", 3))
sketch12.addConstraint(Sketcher.Constraint("Vertical", 5))
sketch12.addConstraint(Sketcher.Constraint("Horizontal", 6))
sketch12.addConstraint(Sketcher.Constraint("Vertical", 8))
sketch12.addConstraint(Sketcher.Constraint("Horizontal", 9))
sketch12.addConstraint(Sketcher.Constraint("Equal", 4, 7))
sketch12.addConstraint(Sketcher.Constraint("Radius", 4, Q("4.8 mm")))
sketch12.addConstraint(Sketcher.Constraint("DistanceX", 6, 1, 6, 2, Q("4.7 mm")))
sketch12.addConstraint(Sketcher.Constraint("DistanceY", 5, 2, 5, 1, Q("14.2 mm")))
sketch12.addConstraint(Sketcher.Constraint("DistanceY", 4, 3, -1, 1, Q("10.3 mm")))
sketch12.addConstraint(Sketcher.Constraint("DistanceX", 1, 1, 1, 2, Q("35.946 mm")))
sketch12.addConstraint(Sketcher.Constraint("DistanceX", -1, 1, 4, 3, Q("7.55 mm")))
sketch12.addConstraint(Sketcher.Constraint("DistanceY", 0, 1, 0, 2, Q("49.1112 mm")))
sketch12.addConstraint(Sketcher.Constraint("DistanceX", 0, 2, -1, 1, Q("10.5888 mm")))
sketch12.addConstraint(Sketcher.Constraint("DistanceY", -1, 1, 0, 2, Q("9.9588 mm")))
pocket4 = body.newObject("PartDesign::Pocket", "Pocket003")
pocket4.Profile = sketch12
pocket4.Length = 19.2
pocket4.Midplane = True

# Sketch on YZ plane
sketch13 = body.newObject("Sketcher::SketchObject", "Sketch012")
sketch13.AttachmentSupport = (doc.getObject("YZ_Plane"), [""])
sketch13.MapMode = "FlatFace"
sketch13.AttachmentOffset = App.Placement(V(0, 0, 7.5), App.Rotation())
sketch13.addGeometry(Part.LineSegment(V(-1.4, -15, 0), V(0.3, -15, 0)), False)
sketch13.addGeometry(Part.LineSegment(V(0.3, -15, 0), V(0.3, -13, 0)), False)
sketch13.addGeometry(Part.LineSegment(V(0.3, -13, 0), V(-1.4, -14.5, 0)), False)
sketch13.addGeometry(Part.LineSegment(V(-1.4, -14.5, 0), V(-1.4, -15, 0)), False)
sketch13.addGeometry(Part.LineSegment(V(-1.4, -15, 0), V(0.3, -15, 0)), True)  # axis
sketch13.addConstraint(Sketcher.Constraint("Coincident", 0, 2, 1, 1))
sketch13.addConstraint(Sketcher.Constraint("Coincident", 1, 2, 2, 1))
sketch13.addConstraint(Sketcher.Constraint("Coincident", 2, 2, 3, 1))
sketch13.addConstraint(Sketcher.Constraint("Coincident", 3, 2, 0, 1))
sketch13.addConstraint(Sketcher.Constraint("Horizontal", 0))
sketch13.addConstraint(Sketcher.Constraint("Vertical", 1))
sketch13.addConstraint(Sketcher.Constraint("Vertical", 3))
sketch13.addConstraint(Sketcher.Constraint("Horizontal", 4))
sketch13.addConstraint(Sketcher.Constraint("Coincident", 4, 1, 3, 2))
sketch13.addConstraint(Sketcher.Constraint("Vertical", 1, 2, 4, 2))
sketch13.addConstraint(Sketcher.Constraint("DistanceY", 1, 1, 1, 2, Q("2 mm")))
sketch13.addConstraint(Sketcher.Constraint("DistanceX", 0, 1, 0, 2, Q("1.8 mm")))
sketch13.addConstraint(Sketcher.Constraint("DistanceY", 3, 2, 3, 1, Q("0.5 mm")))
sketch13.addConstraint(Sketcher.Constraint("DistanceY", 0, 2, -1, 1, Q("15 mm")))
sketch13.addConstraint(Sketcher.Constraint("DistanceX", -1, 1, 0, 2, Q("0.35 mm")))
revolution = body.newObject("PartDesign::Revolution", "Revolution")
revolution.Profile = sketch13
revolution.ReferenceAxis = (sketch13, ["Axis0"])
revolution.Angle = 360

# Sketch on YZ plane
sketch14 = body.newObject("Sketcher::SketchObject", "Sketch013")
sketch14.AttachmentSupport = (doc.getObject("YZ_Plane"), [""])
sketch14.MapMode = "FlatFace"
sketch14.AttachmentOffset = App.Placement(V(0, 0, 15), App.Rotation())
sketch14.addGeometry(Part.LineSegment(V(15.2, -14, 0), V(15.2, -2, 0)), False)
sketch14.addGeometry(Part.LineSegment(V(15.2, -2, 0), V(11.9, -2, 0)), False)
sketch14.addGeometry(Part.LineSegment(V(11.9, -2, 0), V(11.9, -14, 0)), False)
sketch14.addGeometry(Part.LineSegment(V(11.9, -14, 0), V(15.2, -14, 0)), False)
sketch14.addConstraint(Sketcher.Constraint("Coincident", 0, 2, 1, 1))
sketch14.addConstraint(Sketcher.Constraint("Coincident", 1, 2, 2, 1))
sketch14.addConstraint(Sketcher.Constraint("Coincident", 2, 2, 3, 1))
sketch14.addConstraint(Sketcher.Constraint("Coincident", 3, 2, 0, 1))
sketch14.addConstraint(Sketcher.Constraint("Vertical", 0))
sketch14.addConstraint(Sketcher.Constraint("Horizontal", 1))
sketch14.addConstraint(Sketcher.Constraint("Vertical", 2))
sketch14.addConstraint(Sketcher.Constraint("Horizontal", 3))
sketch14.addConstraint(Sketcher.Constraint("DistanceY", 0, 1, 0, 2, Q("12 mm")))
sketch14.addConstraint(Sketcher.Constraint("DistanceY", 0, 2, -1, 1, Q("2 mm")))
sketch14.addConstraint(Sketcher.Constraint("DistanceX", 1, 2, 1, 1, Q("3.25 mm")))
sketch14.addConstraint(Sketcher.Constraint("DistanceX", -1, 1, 0, 2, Q("15.2 mm")))
pocket5 = body.newObject("PartDesign::Pocket", "Pocket004")
pocket5.Profile = sketch14
pocket5.Length = 15

# Sketch on YZ plane
sketch15 = body.newObject("Sketcher::SketchObject", "Sketch014")
sketch15.AttachmentSupport = (doc.getObject("YZ_Plane"), [""])
sketch15.MapMode = "FlatFace"
sketch15.AttachmentOffset = App.Placement(V(0, 0, 15), App.Rotation())
sketch15.addGeometry(Part.LineSegment(V(15.2, -28, 0), V(15.2, -16, 0)), False)
sketch15.addGeometry(Part.LineSegment(V(15.2, -16, 0), V(11.9, -16, 0)), False)
sketch15.addGeometry(Part.LineSegment(V(11.9, -16, 0), V(11.9, -28, 0)), False)
sketch15.addGeometry(Part.LineSegment(V(11.9, -28, 0), V(15.2, -28, 0)), False)
sketch15.addConstraint(Sketcher.Constraint("Coincident", 0, 2, 1, 1))
sketch15.addConstraint(Sketcher.Constraint("Coincident", 1, 2, 2, 1))
sketch15.addConstraint(Sketcher.Constraint("Coincident", 2, 2, 3, 1))
sketch15.addConstraint(Sketcher.Constraint("Coincident", 3, 2, 0, 1))
sketch15.addConstraint(Sketcher.Constraint("Vertical", 0))
sketch15.addConstraint(Sketcher.Constraint("Horizontal", 1))
sketch15.addConstraint(Sketcher.Constraint("Vertical", 2))
sketch15.addConstraint(Sketcher.Constraint("Horizontal", 3))
sketch15.addConstraint(Sketcher.Constraint("DistanceY", 0, 1, 0, 2, Q("12 mm")))
sketch15.addConstraint(Sketcher.Constraint("DistanceY", 0, 2, -1, 1, Q("16 mm")))
sketch15.addConstraint(Sketcher.Constraint("DistanceX", 1, 2, 1, 1, Q("3.25 mm")))
sketch15.addConstraint(Sketcher.Constraint("DistanceX", -1, 1, 0, 2, Q("15.2 mm")))
pocket6 = body.newObject("PartDesign::Pocket", "Pocket005")
pocket6.Profile = sketch15
pocket6.Length = 15

# Sketch on XZ plane
sketch16 = body.newObject("Sketcher::SketchObject", "Sketch015")
sketch16.AttachmentSupport = (doc.getObject("XZ_Plane"), [""])
sketch16.MapMode = "FlatFace"
sketch16.addGeometry(Part.LineSegment(V(0.3, -15, 0), V(0, -15.3, 0)), False)
sketch16.addGeometry(Part.LineSegment(V(0, -15.3, 0), V(0, -14.7, 0)), False)
sketch16.addGeometry(Part.LineSegment(V(0, -14.7, 0), V(0.3, -15, 0)), False)
sketch16.addConstraint(Sketcher.Constraint("Coincident", 0, 2, 1, 1))
sketch16.addConstraint(Sketcher.Constraint("Coincident", 1, 2, 2, 1))
sketch16.addConstraint(Sketcher.Constraint("Coincident", 2, 2, 0, 1))
sketch16.addConstraint(Sketcher.Constraint("Vertical", 1))
sketch16.addConstraint(Sketcher.Constraint("PointOnObject", 0, 2, -2))
sketch16.addConstraint(Sketcher.Constraint("Perpendicular", 0, 2))
sketch16.addConstraint(Sketcher.Constraint("Equal", 0, 2))
sketch16.addConstraint(Sketcher.Constraint("DistanceY", 1, 1, 1, 2, Q("0.6 mm")))
sketch16.addConstraint(Sketcher.Constraint("DistanceY", 2, 2, -1, 1, Q("15 mm")))
pocket7 = body.newObject("PartDesign::Pocket", "Pocket006")
pocket7.Profile = sketch16
pocket7.Length = 40

# Sketch on XZ plane
sketch17 = body.newObject("Sketcher::SketchObject", "Sketch016")
sketch17.AttachmentSupport = (doc.getObject("XZ_Plane"), [""])
sketch17.MapMode = "FlatFace"
sketch17.addGeometry(Part.LineSegment(V(15, -15.3, 0), V(14.7, -15, 0)), False)
sketch17.addGeometry(Part.LineSegment(V(14.7, -15, 0), V(15, -14.7, 0)), False)
sketch17.addGeometry(Part.LineSegment(V(15, -14.7, 0), V(15, -15.3, 0)), False)
sketch17.addConstraint(Sketcher.Constraint("Coincident", 0, 2, 1, 1))
sketch17.addConstraint(Sketcher.Constraint("Coincident", 1, 2, 2, 1))
sketch17.addConstraint(Sketcher.Constraint("Coincident", 2, 2, 0, 1))
sketch17.addConstraint(Sketcher.Constraint("Vertical", 2))
sketch17.addConstraint(Sketcher.Constraint("Perpendicular", 0, 1))
sketch17.addConstraint(Sketcher.Constraint("Equal", 0, 1))
sketch17.addConstraint(Sketcher.Constraint("DistanceY", 2, 2, 2, 1, Q("0.6 mm")))
sketch17.addConstraint(Sketcher.Constraint("DistanceY", 0, 2, -1, 1, Q("15 mm")))
sketch17.addConstraint(Sketcher.Constraint("DistanceX", -1, 1, 1, 2, Q("15 mm")))
pocket8 = body.newObject("PartDesign::Pocket", "Pocket007")
pocket8.Profile = sketch17
pocket8.Length = 40

# Sketch on XZ plane
sketch18 = body.newObject("Sketcher::SketchObject", "Sketch017")
sketch18.AttachmentSupport = (doc.getObject("XZ_Plane"), [""])
sketch18.MapMode = "FlatFace"
sketch18.addGeometry(Part.LineSegment(V(7.5, -0.3, 0), V(7.2, 0, 0)), False)
sketch18.addGeometry(Part.LineSegment(V(7.2, 0, 0), V(7.8, 0, 0)), False)
sketch18.addGeometry(Part.LineSegment(V(7.8, 0, 0), V(7.5, -0.3, 0)), False)
sketch18.addConstraint(Sketcher.Constraint("Coincident", 0, 2, 1, 1))
sketch18.addConstraint(Sketcher.Constraint("Coincident", 1, 2, 2, 1))
sketch18.addConstraint(Sketcher.Constraint("Coincident", 2, 2, 0, 1))
sketch18.addConstraint(Sketcher.Constraint("Horizontal", 1))
sketch18.addConstraint(Sketcher.Constraint("PointOnObject", 0, 2, -1))
sketch18.addConstraint(Sketcher.Constraint("Perpendicular", 0, 2))
sketch18.addConstraint(Sketcher.Constraint("Equal", 0, 2))
sketch18.addConstraint(Sketcher.Constraint("DistanceX", 1, 1, 1, 2, Q("0.6 mm")))
sketch18.addConstraint(Sketcher.Constraint("DistanceX", -1, 1, 0, 2, Q("7.2 mm")))
pocket9 = body.newObject("PartDesign::Pocket", "Pocket008")
pocket9.Profile = sketch18
pocket9.Length = 40

# Sketch on XZ plane
sketch19 = body.newObject("Sketcher::SketchObject", "Sketch018")
sketch19.AttachmentSupport = (doc.getObject("XZ_Plane"), [""])
sketch19.MapMode = "FlatFace"
sketch19.addGeometry(Part.LineSegment(V(7.8, -30, 0), V(7.2, -30, 0)), False)
sketch19.addGeometry(Part.LineSegment(V(7.2, -30, 0), V(7.5, -29.7, 0)), False)
sketch19.addGeometry(Part.LineSegment(V(7.5, -29.7, 0), V(7.8, -30, 0)), False)
sketch19.addConstraint(Sketcher.Constraint("Coincident", 0, 2, 1, 1))
sketch19.addConstraint(Sketcher.Constraint("Coincident", 1, 2, 2, 1))
sketch19.addConstraint(Sketcher.Constraint("Coincident", 2, 2, 0, 1))
sketch19.addConstraint(Sketcher.Constraint("Horizontal", 0))
sketch19.addConstraint(Sketcher.Constraint("Perpendicular", 1, 2))
sketch19.addConstraint(Sketcher.Constraint("Equal", 1, 2))
sketch19.addConstraint(Sketcher.Constraint("DistanceX", 0, 2, 0, 1, Q("0.6 mm")))
sketch19.addConstraint(Sketcher.Constraint("DistanceY", 0, 2, -1, 1, Q("30 mm")))
sketch19.addConstraint(Sketcher.Constraint("DistanceX", -1, 1, 0, 2, Q("7.2 mm")))
pocket10 = body.newObject("PartDesign::Pocket", "Pocket009")
pocket10.Profile = sketch19
pocket10.Length = 50

doc.recompute()
